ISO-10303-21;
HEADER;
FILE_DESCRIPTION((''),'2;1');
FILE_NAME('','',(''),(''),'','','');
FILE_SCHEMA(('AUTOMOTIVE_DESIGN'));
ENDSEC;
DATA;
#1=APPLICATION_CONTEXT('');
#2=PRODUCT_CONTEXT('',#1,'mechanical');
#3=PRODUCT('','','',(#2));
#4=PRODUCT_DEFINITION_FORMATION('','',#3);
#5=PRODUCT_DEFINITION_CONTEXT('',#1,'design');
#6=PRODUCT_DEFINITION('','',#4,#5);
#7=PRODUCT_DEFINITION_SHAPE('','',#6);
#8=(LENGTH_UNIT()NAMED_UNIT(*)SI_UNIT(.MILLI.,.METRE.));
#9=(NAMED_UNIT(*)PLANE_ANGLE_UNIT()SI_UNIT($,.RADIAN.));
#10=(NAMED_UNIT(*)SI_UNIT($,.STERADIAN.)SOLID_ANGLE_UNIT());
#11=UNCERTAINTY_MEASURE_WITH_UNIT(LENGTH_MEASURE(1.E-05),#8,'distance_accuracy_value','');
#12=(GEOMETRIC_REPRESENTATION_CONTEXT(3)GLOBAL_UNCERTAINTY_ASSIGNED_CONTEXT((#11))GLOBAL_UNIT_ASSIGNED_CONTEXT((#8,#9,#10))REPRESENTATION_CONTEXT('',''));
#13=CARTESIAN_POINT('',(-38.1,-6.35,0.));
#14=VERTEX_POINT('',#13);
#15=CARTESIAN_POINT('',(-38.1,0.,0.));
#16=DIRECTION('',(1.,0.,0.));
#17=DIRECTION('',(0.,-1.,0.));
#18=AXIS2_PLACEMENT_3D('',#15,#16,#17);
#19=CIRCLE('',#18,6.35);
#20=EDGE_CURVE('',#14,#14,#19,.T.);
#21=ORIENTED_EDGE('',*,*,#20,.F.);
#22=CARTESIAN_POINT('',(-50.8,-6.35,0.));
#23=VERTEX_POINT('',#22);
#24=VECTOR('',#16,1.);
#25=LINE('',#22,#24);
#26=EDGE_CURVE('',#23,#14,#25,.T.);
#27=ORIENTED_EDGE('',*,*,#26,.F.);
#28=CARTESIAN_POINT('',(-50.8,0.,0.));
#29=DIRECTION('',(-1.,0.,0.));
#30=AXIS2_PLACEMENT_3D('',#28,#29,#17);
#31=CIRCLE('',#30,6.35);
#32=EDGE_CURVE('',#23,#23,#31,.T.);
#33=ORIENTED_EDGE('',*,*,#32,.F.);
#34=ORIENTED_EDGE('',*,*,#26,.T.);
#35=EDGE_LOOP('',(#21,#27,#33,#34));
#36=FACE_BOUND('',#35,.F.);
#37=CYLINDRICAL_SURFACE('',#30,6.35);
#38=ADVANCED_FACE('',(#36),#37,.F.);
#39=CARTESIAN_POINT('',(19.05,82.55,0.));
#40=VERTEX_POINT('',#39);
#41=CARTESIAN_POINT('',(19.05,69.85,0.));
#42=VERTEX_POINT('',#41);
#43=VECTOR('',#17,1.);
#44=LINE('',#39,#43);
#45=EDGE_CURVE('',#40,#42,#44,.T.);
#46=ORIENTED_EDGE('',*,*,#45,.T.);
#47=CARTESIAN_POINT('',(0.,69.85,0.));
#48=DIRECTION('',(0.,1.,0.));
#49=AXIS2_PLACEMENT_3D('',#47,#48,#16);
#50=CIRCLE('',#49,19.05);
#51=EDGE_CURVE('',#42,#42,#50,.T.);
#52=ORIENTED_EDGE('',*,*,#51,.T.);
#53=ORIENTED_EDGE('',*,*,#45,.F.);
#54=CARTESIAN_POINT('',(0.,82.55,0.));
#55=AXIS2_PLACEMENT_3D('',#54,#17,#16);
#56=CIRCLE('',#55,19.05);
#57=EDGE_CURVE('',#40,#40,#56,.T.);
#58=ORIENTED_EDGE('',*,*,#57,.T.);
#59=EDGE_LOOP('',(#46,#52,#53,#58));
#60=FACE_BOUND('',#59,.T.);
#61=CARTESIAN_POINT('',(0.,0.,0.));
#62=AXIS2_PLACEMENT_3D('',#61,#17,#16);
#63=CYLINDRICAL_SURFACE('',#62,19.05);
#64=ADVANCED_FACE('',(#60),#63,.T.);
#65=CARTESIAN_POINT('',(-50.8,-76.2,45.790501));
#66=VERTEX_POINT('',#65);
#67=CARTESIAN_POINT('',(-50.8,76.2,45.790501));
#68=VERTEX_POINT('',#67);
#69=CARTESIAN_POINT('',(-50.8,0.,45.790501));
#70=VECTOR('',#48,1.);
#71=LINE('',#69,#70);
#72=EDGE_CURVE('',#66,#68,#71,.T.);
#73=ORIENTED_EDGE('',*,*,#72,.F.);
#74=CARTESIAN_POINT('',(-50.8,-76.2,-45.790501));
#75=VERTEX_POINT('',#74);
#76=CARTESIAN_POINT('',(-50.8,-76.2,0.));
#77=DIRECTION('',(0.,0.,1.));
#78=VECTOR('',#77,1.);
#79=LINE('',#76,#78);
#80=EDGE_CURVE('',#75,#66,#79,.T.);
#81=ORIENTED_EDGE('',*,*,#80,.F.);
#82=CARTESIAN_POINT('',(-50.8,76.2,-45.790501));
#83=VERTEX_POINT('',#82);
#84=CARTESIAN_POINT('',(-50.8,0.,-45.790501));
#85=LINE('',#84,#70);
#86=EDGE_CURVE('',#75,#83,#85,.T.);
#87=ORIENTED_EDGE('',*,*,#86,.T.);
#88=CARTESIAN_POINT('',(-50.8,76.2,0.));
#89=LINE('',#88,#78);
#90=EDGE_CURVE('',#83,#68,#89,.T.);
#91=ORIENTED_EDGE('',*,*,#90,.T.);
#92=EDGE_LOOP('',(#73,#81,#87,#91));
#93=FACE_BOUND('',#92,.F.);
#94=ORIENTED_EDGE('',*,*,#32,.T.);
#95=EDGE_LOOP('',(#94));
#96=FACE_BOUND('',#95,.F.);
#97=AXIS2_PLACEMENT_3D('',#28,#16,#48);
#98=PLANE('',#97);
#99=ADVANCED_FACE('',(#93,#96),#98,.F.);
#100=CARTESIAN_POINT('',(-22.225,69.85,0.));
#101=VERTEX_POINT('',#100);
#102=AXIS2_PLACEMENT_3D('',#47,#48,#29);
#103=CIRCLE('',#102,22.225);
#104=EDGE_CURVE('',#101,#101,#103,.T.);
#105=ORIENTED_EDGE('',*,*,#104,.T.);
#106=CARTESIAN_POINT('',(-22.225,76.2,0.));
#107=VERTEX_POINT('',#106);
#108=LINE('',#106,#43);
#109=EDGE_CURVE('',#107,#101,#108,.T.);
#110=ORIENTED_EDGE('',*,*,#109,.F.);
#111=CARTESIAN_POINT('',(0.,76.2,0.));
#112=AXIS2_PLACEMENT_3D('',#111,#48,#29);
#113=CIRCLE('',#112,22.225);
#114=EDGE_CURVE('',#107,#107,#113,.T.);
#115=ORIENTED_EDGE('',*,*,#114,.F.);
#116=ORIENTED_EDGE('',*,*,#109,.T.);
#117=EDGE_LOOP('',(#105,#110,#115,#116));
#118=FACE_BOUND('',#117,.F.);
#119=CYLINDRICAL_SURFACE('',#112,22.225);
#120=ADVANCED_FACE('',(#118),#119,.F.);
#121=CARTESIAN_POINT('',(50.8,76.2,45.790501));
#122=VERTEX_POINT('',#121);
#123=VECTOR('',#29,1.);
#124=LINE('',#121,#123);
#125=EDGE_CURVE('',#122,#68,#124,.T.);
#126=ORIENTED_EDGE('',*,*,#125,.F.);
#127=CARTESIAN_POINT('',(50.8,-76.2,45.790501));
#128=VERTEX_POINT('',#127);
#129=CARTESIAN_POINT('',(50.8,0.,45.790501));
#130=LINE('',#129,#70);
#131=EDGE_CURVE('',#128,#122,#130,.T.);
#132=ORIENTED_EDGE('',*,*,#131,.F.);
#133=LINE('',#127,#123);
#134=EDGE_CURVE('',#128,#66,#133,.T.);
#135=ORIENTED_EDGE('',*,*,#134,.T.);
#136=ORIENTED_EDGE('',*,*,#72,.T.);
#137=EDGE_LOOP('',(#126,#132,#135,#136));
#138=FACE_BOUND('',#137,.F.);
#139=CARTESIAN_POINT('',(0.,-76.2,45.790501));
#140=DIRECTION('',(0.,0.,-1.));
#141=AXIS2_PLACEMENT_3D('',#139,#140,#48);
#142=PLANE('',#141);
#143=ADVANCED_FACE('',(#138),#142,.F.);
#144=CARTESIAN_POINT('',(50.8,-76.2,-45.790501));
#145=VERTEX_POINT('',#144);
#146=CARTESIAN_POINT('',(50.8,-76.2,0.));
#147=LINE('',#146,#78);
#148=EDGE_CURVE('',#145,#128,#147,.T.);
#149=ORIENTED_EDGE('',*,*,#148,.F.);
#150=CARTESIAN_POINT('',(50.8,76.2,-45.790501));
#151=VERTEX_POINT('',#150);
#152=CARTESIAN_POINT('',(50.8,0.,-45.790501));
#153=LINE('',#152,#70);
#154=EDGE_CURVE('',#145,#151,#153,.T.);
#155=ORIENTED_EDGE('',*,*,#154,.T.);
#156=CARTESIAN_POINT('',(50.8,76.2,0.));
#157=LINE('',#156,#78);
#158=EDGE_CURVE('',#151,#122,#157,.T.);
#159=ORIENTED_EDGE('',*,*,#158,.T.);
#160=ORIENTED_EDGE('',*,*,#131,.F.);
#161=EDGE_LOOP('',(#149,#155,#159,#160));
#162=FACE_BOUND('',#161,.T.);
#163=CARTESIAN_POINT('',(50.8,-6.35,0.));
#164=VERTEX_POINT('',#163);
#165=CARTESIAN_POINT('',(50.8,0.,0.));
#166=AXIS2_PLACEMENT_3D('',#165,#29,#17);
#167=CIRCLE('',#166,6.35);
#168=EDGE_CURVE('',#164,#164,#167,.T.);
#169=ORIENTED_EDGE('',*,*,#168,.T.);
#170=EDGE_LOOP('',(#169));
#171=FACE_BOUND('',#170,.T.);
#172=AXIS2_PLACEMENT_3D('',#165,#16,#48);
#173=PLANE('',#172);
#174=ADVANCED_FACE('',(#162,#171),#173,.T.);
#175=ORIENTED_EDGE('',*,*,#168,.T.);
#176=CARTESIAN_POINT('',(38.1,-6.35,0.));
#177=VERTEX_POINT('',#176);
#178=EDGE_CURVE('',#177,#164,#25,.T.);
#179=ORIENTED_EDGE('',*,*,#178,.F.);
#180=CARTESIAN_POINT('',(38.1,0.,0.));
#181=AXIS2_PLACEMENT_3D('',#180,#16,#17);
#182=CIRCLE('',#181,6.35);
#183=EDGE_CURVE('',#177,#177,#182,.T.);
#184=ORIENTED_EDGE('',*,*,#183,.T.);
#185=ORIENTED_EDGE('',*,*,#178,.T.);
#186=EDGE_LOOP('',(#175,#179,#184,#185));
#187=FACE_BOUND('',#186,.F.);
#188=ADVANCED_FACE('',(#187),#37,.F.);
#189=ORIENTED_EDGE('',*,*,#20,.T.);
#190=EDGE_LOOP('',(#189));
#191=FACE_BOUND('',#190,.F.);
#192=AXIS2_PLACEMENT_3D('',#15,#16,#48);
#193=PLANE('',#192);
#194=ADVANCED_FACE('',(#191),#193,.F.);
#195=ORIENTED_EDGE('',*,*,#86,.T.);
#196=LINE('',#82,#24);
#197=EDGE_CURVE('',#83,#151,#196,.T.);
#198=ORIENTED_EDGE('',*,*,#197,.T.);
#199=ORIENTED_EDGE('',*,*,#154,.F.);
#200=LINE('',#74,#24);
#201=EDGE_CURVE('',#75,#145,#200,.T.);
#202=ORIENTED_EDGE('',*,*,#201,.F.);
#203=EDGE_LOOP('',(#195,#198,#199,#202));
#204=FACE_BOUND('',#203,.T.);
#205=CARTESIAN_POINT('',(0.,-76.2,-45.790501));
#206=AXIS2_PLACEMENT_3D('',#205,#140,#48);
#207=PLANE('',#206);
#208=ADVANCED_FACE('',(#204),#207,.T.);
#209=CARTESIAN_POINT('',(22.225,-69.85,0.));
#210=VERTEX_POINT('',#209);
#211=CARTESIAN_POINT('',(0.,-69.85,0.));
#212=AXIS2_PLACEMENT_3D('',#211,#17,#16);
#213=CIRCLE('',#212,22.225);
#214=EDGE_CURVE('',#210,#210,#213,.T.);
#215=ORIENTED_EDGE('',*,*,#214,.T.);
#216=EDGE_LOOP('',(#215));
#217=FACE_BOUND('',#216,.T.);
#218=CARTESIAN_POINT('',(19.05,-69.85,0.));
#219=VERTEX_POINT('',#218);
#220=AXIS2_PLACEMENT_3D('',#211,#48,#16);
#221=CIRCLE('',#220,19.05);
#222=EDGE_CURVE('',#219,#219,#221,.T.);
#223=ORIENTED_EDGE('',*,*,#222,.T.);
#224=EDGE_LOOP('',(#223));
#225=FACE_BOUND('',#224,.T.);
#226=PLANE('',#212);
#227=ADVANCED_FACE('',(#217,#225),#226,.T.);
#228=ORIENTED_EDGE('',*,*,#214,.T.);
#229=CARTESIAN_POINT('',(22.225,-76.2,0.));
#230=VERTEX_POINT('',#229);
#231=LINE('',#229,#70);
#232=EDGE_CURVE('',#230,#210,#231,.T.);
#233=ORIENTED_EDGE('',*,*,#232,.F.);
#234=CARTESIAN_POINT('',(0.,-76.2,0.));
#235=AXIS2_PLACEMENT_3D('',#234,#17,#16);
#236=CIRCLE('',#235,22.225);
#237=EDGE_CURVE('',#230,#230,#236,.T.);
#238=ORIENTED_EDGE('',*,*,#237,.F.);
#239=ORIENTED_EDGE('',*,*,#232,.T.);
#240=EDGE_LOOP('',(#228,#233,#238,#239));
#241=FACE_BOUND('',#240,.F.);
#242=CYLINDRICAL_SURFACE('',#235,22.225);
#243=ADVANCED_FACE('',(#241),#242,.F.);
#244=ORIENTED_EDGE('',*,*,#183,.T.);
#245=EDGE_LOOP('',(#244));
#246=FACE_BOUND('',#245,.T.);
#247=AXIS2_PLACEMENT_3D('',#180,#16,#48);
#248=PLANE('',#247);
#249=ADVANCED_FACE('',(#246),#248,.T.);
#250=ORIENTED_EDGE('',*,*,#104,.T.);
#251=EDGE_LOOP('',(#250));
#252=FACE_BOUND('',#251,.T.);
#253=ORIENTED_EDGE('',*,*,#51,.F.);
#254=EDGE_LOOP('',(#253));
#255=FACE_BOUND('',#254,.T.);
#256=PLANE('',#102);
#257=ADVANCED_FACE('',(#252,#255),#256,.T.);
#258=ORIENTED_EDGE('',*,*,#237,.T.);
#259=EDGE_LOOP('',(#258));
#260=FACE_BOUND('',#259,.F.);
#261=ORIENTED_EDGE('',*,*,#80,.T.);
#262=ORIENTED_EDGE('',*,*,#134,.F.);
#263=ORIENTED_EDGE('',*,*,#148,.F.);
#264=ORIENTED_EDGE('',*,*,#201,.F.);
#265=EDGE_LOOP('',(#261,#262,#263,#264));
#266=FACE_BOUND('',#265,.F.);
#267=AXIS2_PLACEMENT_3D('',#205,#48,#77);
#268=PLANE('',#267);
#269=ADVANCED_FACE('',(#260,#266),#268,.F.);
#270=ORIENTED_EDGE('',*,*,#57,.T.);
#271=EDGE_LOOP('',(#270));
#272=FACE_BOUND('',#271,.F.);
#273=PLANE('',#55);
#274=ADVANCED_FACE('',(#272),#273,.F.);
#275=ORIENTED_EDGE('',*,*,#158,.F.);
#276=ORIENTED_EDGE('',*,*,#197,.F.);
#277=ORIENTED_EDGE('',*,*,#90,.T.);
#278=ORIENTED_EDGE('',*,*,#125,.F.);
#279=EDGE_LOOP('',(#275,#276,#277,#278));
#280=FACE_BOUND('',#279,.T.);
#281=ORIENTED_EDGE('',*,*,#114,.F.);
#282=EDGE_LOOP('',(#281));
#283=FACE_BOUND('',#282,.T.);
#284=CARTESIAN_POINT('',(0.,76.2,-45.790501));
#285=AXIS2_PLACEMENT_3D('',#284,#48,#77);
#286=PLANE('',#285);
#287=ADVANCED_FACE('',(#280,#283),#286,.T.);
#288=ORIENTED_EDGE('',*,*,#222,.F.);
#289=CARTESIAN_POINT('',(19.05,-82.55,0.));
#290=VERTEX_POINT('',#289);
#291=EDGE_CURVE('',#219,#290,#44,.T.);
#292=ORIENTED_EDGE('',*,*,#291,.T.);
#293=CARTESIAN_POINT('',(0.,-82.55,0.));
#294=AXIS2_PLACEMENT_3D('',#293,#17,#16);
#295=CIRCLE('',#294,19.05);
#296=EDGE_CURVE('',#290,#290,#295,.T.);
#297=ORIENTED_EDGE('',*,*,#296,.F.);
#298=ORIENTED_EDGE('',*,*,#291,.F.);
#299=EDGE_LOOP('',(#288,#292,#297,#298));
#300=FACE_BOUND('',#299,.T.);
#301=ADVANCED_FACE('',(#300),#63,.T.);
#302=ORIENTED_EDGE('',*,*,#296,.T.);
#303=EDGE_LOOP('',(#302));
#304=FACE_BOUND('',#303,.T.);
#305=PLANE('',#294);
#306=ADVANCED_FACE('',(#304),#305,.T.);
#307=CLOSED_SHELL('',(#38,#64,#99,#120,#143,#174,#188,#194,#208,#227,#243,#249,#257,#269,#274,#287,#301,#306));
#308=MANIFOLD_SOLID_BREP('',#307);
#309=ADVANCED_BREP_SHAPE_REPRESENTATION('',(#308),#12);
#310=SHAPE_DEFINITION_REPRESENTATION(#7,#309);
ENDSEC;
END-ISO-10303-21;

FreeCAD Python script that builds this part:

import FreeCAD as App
import Part
import Sketcher

V = App.Vector
Q = App.Units.Quantity


def add_polygon(sketch, points):
    """Adds a closed chain of lines whose ends are joined by coincident constraints."""
    first, n = sketch.GeometryCount, len(points)
    for a, b in zip(points, points[1:] + points[:1]):
        sketch.addGeometry(Part.LineSegment(App.Vector(*a, 0), App.Vector(*b, 0)), False)
    for i in range(n):
        sketch.addConstraint(Sketcher.Constraint("Coincident", first + i, 2, first + (i + 1) % n, 1))

doc = App.newDocument("Part")
body = doc.addObject("PartDesign::Body", "Body")

# Sketch on YZ plane
sketch1 = body.newObject("Sketcher::SketchObject", "Sketch")
sketch1.AttachmentSupport = (doc.getObject("YZ_Plane"), [""])
sketch1.MapMode = "FlatFace"
add_polygon(sketch1, [(-76.2, 45.790501), (-76.2, -45.790501), (76.2, -45.790501), (76.2, 45.790501)])  # lines 0-3
sketch1.addConstraint(Sketcher.Constraint("Vertical", 0))
sketch1.addConstraint(Sketcher.Constraint("Horizontal", 1))
sketch1.addConstraint(Sketcher.Constraint("Vertical", 2))
sketch1.addConstraint(Sketcher.Constraint("Horizontal", 3))
sketch1.addConstraint(Sketcher.Constraint("Symmetric", 0, 2, 2, 2, -1, 1))
sketch1.addConstraint(Sketcher.Constraint("DistanceX", 1, 1, 1, 2, Q("6 in")))
sketch1.addConstraint(Sketcher.Constraint("DistanceY", 0, 2, 0, 1, 91.581002))
pad1 = body.newObject("PartDesign::Pad", "Pad")
pad1.Profile = sketch1
pad1.Length = Q("4 in")
pad1.Midplane = True

# Sketch on XZ plane
sketch2 = body.newObject("Sketcher::SketchObject", "Sketch001")
sketch2.AttachmentSupport = (doc.getObject("XZ_Plane"), [""])
sketch2.MapMode = "FlatFace"
sketch2.AttachmentOffset = App.Placement(V(0, 0, -3 * 25.4), App.Rotation())
sketch2.addGeometry(Part.Circle(V(0, 0, 0), V(0, 0, 1), 19.05), False)
sketch2.addConstraint(Sketcher.Constraint("Coincident", 0, 3, -1, 1))
sketch2.addConstraint(Sketcher.Constraint("Diameter", 0, Q("1.5 in")))
pocket1 = body.newObject("PartDesign::Pocket", "Pocket")
pocket1.Profile = sketch2
pocket1.Length = Q("12 in")
pocket1.Midplane = True

# Sketch on XZ plane
sketch3 = body.newObject("Sketcher::SketchObject", "Sketch002")
sketch3.AttachmentSupport = (doc.getObject("XZ_Plane"), [""])
sketch3.MapMode = "FlatFace"
sketch3.AttachmentOffset = App.Placement(V(0, 0, -3 * 25.4), App.Rotation())
sketch3.addGeometry(Part.Circle(V(0, 0, 0), V(0, 0, 1), 22.225), False)
sketch3.addGeometry(Part.Circle(V(0, 0, 0), V(0, 0, 1), 19.05), False)
sketch3.addConstraint(Sketcher.Constraint("Coincident", 0, 3, -1, 1))
sketch3.addConstraint(Sketcher.Constraint("Coincident", 1, 3, -1, 1))
sketch3.addConstraint(Sketcher.Constraint("Diameter", 1, Q("1.5 in")))
sketch3.addConstraint(Sketcher.Constraint("Diameter", 0, Q("1.75 in")))
pocket2 = body.newObject("PartDesign::Pocket", "Pocket001")
pocket2.Profile = sketch3
pocket2.Length = Q("0.25 in")
pocket2.Reversed = True

# Sketch on XZ plane
sketch4 = body.newObject("Sketcher::SketchObject", "Sketch003")
sketch4.AttachmentSupport = (doc.getObject("XZ_Plane"), [""])
sketch4.MapMode = "FlatFace"
sketch4.AttachmentOffset = App.Placement(V(0, 0, 3 * 25.4), App.Rotation())
sketch4.addGeometry(Part.Circle(V(0, 0, 0), V(0, 0, 1), 22.225), False)
sketch4.addGeometry(Part.Circle(V(0, 0, 0), V(0, 0, 1), 19.05), False)
sketch4.addConstraint(Sketcher.Constraint("Coincident", 0, 3, -1, 1))
sketch4.addConstraint(Sketcher.Constraint("Coincident", 1, 3, -1, 1))
sketch4.addConstraint(Sketcher.Constraint("Diameter", 1, Q("1.5 in")))
sketch4.addConstraint(Sketcher.Constraint("Diameter", 0, Q("1.75 in")))
pocket3 = body.newObject("PartDesign::Pocket", "Pocket002")
pocket3.Profile = sketch4
pocket3.Length = Q("0.25 in")

# Sketch on XZ plane
sketch5 = body.newObject("Sketcher::SketchObject", "Sketch004")
sketch5.AttachmentSupport = (doc.getObject("XZ_Plane"), [""])
sketch5.MapMode = "FlatFace"
sketch5.addGeometry(Part.Circle(V(0, 0, 0), V(0, 0, 1), 19.05), False)
sketch5.addConstraint(Sketcher.Constraint("Coincident", 0, 3, -1, 1))
sketch5.addConstraint(Sketcher.Constraint("Diameter", 0, Q("1.5 in")))
pad2 = body.newObject("PartDesign::Pad", "Pad001")
pad2.Profile = sketch5
pad2.Length = Q("6.5 in")
pad2.Midplane = True

# Sketch on YZ plane
sketch6 = body.newObject("Sketcher::SketchObject", "Sketch005")
sketch6.AttachmentSupport = (doc.getObject("YZ_Plane"), [""])
sketch6.MapMode = "FlatFace"
sketch6.AttachmentOffset = App.Placement(V(0, 0, -2 * 25.4), App.Rotation())
sketch6.addGeometry(Part.Circle(V(0, 0, 0), V(0, 0, 1), 6.35), False)
sketch6.addConstraint(Sketcher.Constraint("Coincident", 0, 3, -1, 1))
sketch6.addConstraint(Sketcher.Constraint("Diameter", 0, Q("0.5 in")))
pocket4 = body.newObject("PartDesign::Pocket", "Pocket003")
pocket4.Profile = sketch6
pocket4.Length = Q("6 in")
pocket4.Reversed = True

# Sketch on YZ plane
sketch7 = body.newObject("Sketcher::SketchObject", "Sketch006")
sketch7.AttachmentSupport = (doc.getObject("YZ_Plane"), [""])
sketch7.MapMode = "FlatFace"
sketch7.addGeometry(Part.Circle(V(0, 0, 0), V(0, 0, 1), 6.35), False)
sketch7.addConstraint(Sketcher.Constraint("Coincident", 0, 3, -1, 1))
sketch7.addConstraint(Sketcher.Constraint("Diameter", 0, Q("0.5 in")))
pad3 = body.newObject("PartDesign::Pad", "Pad002")
pad3.Profile = sketch7
pad3.Length = Q("3 in")
pad3.Midplane = True

doc.recompute()
